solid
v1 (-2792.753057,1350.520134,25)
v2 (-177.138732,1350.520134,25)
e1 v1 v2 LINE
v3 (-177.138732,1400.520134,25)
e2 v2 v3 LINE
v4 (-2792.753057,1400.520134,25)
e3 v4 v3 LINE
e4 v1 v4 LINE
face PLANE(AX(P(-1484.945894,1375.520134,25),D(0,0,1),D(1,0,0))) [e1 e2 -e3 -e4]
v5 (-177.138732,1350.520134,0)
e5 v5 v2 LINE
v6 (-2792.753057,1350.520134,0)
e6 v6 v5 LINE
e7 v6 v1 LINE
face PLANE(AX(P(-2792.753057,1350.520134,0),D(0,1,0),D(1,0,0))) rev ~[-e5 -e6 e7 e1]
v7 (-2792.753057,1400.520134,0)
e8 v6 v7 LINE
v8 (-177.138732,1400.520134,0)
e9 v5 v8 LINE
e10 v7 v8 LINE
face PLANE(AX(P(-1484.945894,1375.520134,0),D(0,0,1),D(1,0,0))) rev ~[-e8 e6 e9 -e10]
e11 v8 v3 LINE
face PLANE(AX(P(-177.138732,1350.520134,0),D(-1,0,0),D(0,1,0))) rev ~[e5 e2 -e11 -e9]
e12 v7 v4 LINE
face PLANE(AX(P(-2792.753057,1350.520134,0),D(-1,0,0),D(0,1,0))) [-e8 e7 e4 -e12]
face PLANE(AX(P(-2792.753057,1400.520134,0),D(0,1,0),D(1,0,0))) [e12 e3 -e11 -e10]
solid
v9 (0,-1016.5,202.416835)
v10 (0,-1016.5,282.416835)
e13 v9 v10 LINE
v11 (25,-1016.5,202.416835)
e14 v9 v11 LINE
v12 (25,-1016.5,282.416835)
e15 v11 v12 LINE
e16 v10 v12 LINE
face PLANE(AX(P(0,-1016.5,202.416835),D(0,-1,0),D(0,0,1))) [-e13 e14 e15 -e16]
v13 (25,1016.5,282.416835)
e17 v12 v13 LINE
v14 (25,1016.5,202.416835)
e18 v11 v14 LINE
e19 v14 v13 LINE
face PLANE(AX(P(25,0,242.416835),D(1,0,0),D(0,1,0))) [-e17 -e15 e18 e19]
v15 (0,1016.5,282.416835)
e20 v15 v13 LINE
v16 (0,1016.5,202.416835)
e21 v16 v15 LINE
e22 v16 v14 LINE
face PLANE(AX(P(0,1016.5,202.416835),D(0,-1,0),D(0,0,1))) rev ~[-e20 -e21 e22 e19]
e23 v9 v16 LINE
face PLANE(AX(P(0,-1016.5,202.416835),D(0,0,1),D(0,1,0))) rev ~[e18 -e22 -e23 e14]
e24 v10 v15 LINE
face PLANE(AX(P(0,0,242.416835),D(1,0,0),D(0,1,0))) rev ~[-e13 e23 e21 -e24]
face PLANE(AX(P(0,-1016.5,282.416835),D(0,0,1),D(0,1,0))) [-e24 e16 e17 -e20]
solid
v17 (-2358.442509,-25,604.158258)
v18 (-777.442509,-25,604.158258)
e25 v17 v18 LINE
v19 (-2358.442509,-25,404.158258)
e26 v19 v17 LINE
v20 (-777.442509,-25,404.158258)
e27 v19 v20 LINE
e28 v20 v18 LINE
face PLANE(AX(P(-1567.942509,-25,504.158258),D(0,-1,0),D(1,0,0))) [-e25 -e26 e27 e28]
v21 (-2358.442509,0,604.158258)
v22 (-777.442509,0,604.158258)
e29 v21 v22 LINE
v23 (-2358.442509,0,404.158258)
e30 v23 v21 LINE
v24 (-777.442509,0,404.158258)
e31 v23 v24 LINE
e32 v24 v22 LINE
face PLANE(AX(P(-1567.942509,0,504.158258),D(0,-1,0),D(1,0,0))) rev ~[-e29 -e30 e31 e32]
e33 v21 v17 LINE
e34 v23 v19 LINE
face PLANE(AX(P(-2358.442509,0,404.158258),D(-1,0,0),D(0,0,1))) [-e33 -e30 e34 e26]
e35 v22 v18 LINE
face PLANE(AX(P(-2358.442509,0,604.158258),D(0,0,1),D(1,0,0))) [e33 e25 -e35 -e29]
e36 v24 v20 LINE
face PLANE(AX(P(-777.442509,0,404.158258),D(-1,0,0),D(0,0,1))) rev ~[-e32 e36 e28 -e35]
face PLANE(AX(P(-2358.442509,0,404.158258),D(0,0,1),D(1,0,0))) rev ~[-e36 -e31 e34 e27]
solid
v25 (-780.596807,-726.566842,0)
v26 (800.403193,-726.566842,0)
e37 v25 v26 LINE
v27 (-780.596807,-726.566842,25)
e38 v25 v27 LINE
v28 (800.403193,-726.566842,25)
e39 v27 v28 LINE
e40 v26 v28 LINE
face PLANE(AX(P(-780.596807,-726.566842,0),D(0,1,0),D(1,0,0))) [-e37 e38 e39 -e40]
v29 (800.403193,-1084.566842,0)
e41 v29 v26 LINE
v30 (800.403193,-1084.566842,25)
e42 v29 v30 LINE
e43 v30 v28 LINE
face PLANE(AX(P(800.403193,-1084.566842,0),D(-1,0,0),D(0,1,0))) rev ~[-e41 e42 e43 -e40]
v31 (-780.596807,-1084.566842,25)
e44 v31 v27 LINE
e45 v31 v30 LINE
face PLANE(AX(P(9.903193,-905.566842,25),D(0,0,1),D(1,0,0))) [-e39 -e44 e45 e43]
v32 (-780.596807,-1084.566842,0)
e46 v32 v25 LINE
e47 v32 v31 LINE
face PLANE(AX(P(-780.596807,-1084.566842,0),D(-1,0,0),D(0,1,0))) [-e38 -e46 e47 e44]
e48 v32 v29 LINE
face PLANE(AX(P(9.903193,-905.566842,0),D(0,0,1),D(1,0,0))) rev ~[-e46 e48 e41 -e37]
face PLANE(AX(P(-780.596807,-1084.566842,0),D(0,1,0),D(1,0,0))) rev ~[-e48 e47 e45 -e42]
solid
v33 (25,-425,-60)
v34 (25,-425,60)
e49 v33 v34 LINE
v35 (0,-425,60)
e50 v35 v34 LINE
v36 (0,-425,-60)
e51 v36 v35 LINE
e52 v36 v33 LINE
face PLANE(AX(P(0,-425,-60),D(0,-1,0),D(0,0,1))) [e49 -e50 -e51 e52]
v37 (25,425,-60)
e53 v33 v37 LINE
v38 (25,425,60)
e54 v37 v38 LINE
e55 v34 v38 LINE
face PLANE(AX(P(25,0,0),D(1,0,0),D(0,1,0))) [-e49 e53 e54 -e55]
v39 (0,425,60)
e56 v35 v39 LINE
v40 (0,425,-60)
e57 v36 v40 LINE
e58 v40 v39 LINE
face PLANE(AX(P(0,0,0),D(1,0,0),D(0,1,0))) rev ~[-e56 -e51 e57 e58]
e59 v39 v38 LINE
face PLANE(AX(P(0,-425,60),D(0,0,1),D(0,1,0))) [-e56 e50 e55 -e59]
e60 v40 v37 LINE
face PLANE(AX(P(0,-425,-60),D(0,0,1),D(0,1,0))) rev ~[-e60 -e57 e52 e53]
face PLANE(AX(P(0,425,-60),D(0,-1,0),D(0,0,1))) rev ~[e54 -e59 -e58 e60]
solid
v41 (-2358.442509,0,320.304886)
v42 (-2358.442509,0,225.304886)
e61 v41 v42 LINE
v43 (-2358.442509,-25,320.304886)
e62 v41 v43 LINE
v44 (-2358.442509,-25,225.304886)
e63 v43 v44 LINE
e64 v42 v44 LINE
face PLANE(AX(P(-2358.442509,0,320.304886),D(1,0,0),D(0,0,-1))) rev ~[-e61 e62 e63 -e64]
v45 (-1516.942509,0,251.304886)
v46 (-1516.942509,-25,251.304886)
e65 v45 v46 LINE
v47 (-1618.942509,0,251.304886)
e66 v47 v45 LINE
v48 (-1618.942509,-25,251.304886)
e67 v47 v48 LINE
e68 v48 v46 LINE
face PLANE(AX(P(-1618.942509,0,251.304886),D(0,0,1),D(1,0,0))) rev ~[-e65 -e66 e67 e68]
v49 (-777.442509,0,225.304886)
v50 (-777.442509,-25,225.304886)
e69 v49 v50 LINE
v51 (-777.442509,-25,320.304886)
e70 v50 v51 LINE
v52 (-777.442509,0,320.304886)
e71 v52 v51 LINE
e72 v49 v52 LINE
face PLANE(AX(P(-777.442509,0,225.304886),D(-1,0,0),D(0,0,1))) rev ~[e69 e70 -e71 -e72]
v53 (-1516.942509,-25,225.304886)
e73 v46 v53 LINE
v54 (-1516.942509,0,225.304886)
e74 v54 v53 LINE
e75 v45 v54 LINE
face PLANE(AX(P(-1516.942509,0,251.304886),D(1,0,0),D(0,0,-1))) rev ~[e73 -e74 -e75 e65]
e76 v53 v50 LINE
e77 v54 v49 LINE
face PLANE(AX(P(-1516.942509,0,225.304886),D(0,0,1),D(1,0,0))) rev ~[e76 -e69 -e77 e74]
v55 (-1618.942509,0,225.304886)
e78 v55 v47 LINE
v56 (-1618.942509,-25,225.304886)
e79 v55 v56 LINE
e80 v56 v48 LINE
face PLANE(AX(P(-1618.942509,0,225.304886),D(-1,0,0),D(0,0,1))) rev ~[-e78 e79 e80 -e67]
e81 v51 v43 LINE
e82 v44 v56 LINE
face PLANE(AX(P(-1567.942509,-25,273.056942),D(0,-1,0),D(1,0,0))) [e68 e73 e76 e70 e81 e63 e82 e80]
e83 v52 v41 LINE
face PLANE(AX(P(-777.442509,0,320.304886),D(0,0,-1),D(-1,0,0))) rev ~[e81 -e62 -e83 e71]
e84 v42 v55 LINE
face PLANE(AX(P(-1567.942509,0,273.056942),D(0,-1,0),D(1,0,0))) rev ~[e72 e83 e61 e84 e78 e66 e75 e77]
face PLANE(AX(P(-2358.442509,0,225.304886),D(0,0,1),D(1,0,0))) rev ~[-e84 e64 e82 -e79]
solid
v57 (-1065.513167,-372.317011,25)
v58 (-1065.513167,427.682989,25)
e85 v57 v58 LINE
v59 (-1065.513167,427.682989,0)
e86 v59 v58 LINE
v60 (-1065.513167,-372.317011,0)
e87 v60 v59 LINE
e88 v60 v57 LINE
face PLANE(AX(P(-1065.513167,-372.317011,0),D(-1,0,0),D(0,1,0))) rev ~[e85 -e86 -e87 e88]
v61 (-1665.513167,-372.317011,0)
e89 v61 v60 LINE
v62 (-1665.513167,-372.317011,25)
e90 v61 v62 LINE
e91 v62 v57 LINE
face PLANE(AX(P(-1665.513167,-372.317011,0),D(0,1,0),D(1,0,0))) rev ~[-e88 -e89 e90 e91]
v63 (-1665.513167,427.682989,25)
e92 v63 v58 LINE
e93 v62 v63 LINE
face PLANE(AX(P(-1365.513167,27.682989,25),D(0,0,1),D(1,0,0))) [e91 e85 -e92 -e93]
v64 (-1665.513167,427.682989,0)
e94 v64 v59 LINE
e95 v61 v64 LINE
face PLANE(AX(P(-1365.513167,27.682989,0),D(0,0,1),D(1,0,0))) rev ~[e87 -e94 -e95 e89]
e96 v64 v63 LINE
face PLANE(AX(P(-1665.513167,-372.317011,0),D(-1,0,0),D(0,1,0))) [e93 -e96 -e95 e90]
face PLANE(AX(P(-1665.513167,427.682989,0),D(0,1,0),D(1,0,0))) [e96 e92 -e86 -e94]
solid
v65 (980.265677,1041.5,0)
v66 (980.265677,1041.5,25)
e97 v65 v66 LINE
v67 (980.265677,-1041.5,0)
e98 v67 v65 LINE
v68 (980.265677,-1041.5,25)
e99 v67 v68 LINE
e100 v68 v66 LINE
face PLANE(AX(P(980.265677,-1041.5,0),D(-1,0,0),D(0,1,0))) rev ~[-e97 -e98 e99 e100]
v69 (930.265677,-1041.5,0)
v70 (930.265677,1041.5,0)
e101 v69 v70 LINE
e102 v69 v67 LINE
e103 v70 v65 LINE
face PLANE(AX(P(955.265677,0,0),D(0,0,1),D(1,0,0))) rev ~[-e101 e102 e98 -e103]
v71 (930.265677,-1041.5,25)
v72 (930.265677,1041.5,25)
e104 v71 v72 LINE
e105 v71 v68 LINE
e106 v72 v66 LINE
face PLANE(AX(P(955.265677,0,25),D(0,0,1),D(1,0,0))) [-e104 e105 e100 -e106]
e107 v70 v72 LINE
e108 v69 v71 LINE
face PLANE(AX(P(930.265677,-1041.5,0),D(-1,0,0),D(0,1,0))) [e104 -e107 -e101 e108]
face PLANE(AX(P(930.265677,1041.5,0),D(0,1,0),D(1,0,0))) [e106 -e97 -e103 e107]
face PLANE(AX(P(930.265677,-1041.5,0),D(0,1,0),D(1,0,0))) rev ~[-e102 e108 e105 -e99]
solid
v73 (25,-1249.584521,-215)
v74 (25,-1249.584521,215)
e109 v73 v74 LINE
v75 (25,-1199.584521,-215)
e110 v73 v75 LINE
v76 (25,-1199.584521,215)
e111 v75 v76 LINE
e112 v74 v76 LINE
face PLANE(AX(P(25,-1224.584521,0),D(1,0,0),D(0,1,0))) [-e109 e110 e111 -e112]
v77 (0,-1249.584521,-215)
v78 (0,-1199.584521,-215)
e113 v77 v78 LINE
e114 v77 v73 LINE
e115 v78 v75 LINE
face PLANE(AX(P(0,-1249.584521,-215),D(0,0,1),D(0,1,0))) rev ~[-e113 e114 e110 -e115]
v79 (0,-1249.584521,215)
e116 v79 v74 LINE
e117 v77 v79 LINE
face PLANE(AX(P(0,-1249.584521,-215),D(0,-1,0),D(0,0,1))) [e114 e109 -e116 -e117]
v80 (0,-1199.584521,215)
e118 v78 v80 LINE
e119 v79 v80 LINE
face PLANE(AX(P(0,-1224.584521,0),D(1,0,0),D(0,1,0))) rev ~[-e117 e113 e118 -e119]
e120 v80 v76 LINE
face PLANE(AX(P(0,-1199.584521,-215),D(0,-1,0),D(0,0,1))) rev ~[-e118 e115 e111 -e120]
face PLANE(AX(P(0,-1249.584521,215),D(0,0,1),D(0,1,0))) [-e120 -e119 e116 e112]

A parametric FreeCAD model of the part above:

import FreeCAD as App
import Part
import Sketcher
Q = App.Units.Quantity

doc = App.newDocument("Part")
body = doc.addObject("PartDesign::Body", "Body")
body.AllowCompound = True

# Sketch on YZ plane
sketch1 = body.newObject("Sketcher::SketchObject", "Sketch")
sketch1.AttachmentSupport = (doc.getObject("YZ_Plane"), [""])
sketch1.MapMode = "FlatFace"
sketch1.addGeometry(Part.LineSegment(App.Vector(-1250, 215, 0), App.Vector(-1250, -215, 0)), False)
sketch1.addGeometry(Part.LineSegment(App.Vector(-1250, -215, 0), App.Vector(-1200, -215, 0)), False)
sketch1.addGeometry(Part.LineSegment(App.Vector(-1200, -215, 0), App.Vector(-1200, 215, 0)), False)
sketch1.addGeometry(Part.LineSegment(App.Vector(-1200, 215, 0), App.Vector(-1250, 215, 0)), False)
sketch1.addGeometry(Part.LineSegment(App.Vector(-1016, 282, 0), App.Vector(-1016, 202, 0)), False)
sketch1.addGeometry(Part.LineSegment(App.Vector(-1016, 202, 0), App.Vector(1016, 202, 0)), False)
sketch1.addGeometry(Part.LineSegment(App.Vector(1016, 202, 0), App.Vector(1016, 282, 0)), False)
sketch1.addGeometry(Part.LineSegment(App.Vector(1016, 282, 0), App.Vector(-1016, 282, 0)), False)
sketch1.addGeometry(Part.LineSegment(App.Vector(-425, 60, 0), App.Vector(-425, -60, 0)), False)
sketch1.addGeometry(Part.LineSegment(App.Vector(-425, -60, 0), App.Vector(425, -60, 0)), False)
sketch1.addGeometry(Part.LineSegment(App.Vector(425, -60, 0), App.Vector(425, 60, 0)), False)
sketch1.addGeometry(Part.LineSegment(App.Vector(425, 60, 0), App.Vector(-425, 60, 0)), False)
sketch1.addConstraint(Sketcher.Constraint("Coincident", 0, 2, 1, 1))
sketch1.addConstraint(Sketcher.Constraint("Coincident", 1, 2, 2, 1))
sketch1.addConstraint(Sketcher.Constraint("Coincident", 2, 2, 3, 1))
sketch1.addConstraint(Sketcher.Constraint("Coincident", 3, 2, 0, 1))
sketch1.addConstraint(Sketcher.Constraint("Coincident", 4, 2, 5, 1))
sketch1.addConstraint(Sketcher.Constraint("Coincident", 5, 2, 6, 1))
sketch1.addConstraint(Sketcher.Constraint("Coincident", 6, 2, 7, 1))
sketch1.addConstraint(Sketcher.Constraint("Coincident", 7, 2, 4, 1))
sketch1.addConstraint(Sketcher.Constraint("Coincident", 8, 2, 9, 1))
sketch1.addConstraint(Sketcher.Constraint("Coincident", 9, 2, 10, 1))
sketch1.addConstraint(Sketcher.Constraint("Coincident", 10, 2, 11, 1))
sketch1.addConstraint(Sketcher.Constraint("Coincident", 11, 2, 8, 1))
sketch1.addConstraint(Sketcher.Constraint("Vertical", 0))
sketch1.addConstraint(Sketcher.Constraint("Horizontal", 1))
sketch1.addConstraint(Sketcher.Constraint("Vertical", 2))
sketch1.addConstraint(Sketcher.Constraint("Horizontal", 3))
sketch1.addConstraint(Sketcher.Constraint("Vertical", 4))
sketch1.addConstraint(Sketcher.Constraint("Horizontal", 5))
sketch1.addConstraint(Sketcher.Constraint("Vertical", 6))
sketch1.addConstraint(Sketcher.Constraint("Horizontal", 7))
sketch1.addConstraint(Sketcher.Constraint("Vertical", 8))
sketch1.addConstraint(Sketcher.Constraint("Horizontal", 9))
sketch1.addConstraint(Sketcher.Constraint("Vertical", 10))
sketch1.addConstraint(Sketcher.Constraint("Horizontal", 11))
sketch1.addConstraint(Sketcher.Constraint("Symmetric", 8, 2, 10, 2, -1, 1))
sketch1.addConstraint(Sketcher.Constraint("DistanceX", 1, 1, 1, 2, Q("50 mm")))
sketch1.addConstraint(Sketcher.Constraint("DistanceX", 5, 1, 5, 2, Q("2033 mm")))
sketch1.addConstraint(Sketcher.Constraint("DistanceX", 9, 1, 9, 2, Q("850 mm")))
sketch1.addConstraint(Sketcher.Constraint("DistanceY", 0, 2, 0, 1, Q("430 mm")))
sketch1.addConstraint(Sketcher.Constraint("DistanceY", 4, 2, 4, 1, Q("80 mm")))
sketch1.addConstraint(Sketcher.Constraint("DistanceY", 8, 2, 8, 1, Q("120 mm")))
sketch1.addConstraint(Sketcher.Constraint("DistanceY", 0, 2, -1, 1, Q("215 mm")))
sketch1.addConstraint(Sketcher.Constraint("DistanceX", 4, 2, -1, 1, Q("1016.5 mm")))
sketch1.addConstraint(Sketcher.Constraint("DistanceX", 0, 2, -1, 1, Q("1249.584521 mm")))
sketch1.addConstraint(Sketcher.Constraint("DistanceY", -1, 1, 4, 2, Q("202.416835 mm")))
pad1 = body.newObject("PartDesign::Pad", "Pad")
pad1.Profile = sketch1
pad1.Length = 25
body2 = doc.addObject("PartDesign::Body", "Body001")
body2.AllowCompound = True

# Sketch on XY plane
sketch2 = body2.newObject("Sketcher::SketchObject", "Sketch001")
sketch2.AttachmentSupport = (doc.getObject("XY_Plane001"), [""])
sketch2.MapMode = "FlatFace"
sketch2.addGeometry(Part.LineSegment(App.Vector(-781, -727, 0), App.Vector(-781, -1085, 0)), False)
sketch2.addGeometry(Part.LineSegment(App.Vector(-781, -1085, 0), App.Vector(800, -1085, 0)), False)
sketch2.addGeometry(Part.LineSegment(App.Vector(800, -1085, 0), App.Vector(800, -727, 0)), False)
sketch2.addGeometry(Part.LineSegment(App.Vector(800, -727, 0), App.Vector(-781, -727, 0)), False)
sketch2.addGeometry(Part.LineSegment(App.Vector(-1666, 428, 0), App.Vector(-1666, -372, 0)), False)
sketch2.addGeometry(Part.LineSegment(App.Vector(-1666, -372, 0), App.Vector(-1066, -372, 0)), False)
sketch2.addGeometry(Part.LineSegment(App.Vector(-1066, -372, 0), App.Vector(-1066, 428, 0)), False)
sketch2.addGeometry(Part.LineSegment(App.Vector(-1066, 428, 0), App.Vector(-1666, 428, 0)), False)
sketch2.addConstraint(Sketcher.Constraint("Coincident", 0, 2, 1, 1))
sketch2.addConstraint(Sketcher.Constraint("Coincident", 1, 2, 2, 1))
sketch2.addConstraint(Sketcher.Constraint("Coincident", 2, 2, 3, 1))
sketch2.addConstraint(Sketcher.Constraint("Coincident", 3, 2, 0, 1))
sketch2.addConstraint(Sketcher.Constraint("Coincident", 4, 2, 5, 1))
sketch2.addConstraint(Sketcher.Constraint("Coincident", 5, 2, 6, 1))
sketch2.addConstraint(Sketcher.Constraint("Coincident", 6, 2, 7, 1))
sketch2.addConstraint(Sketcher.Constraint("Coincident", 7, 2, 4, 1))
sketch2.addConstraint(Sketcher.Constraint("Vertical", 0))
sketch2.addConstraint(Sketcher.Constraint("Horizontal", 1))
sketch2.addConstraint(Sketcher.Constraint("Vertical", 2))
sketch2.addConstraint(Sketcher.Constraint("Horizontal", 3))
sketch2.addConstraint(Sketcher.Constraint("Vertical", 4))
sketch2.addConstraint(Sketcher.Constraint("Horizontal", 5))
sketch2.addConstraint(Sketcher.Constraint("Vertical", 6))
sketch2.addConstraint(Sketcher.Constraint("Horizontal", 7))
sketch2.addConstraint(Sketcher.Constraint("DistanceX", 1, 1, 1, 2, Q("1581 mm")))
sketch2.addConstraint(Sketcher.Constraint("DistanceX", 5, 1, 5, 2, Q("600 mm")))
sketch2.addConstraint(Sketcher.Constraint("DistanceY", 0, 2, 0, 1, Q("358 mm")))
sketch2.addConstraint(Sketcher.Constraint("DistanceY", 4, 2, 4, 1, Q("800 mm")))
sketch2.addConstraint(Sketcher.Constraint("DistanceY", 0, 2, -1, 1, Q("1084.566842 mm")))
sketch2.addConstraint(Sketcher.Constraint("DistanceY", 4, 2, -1, 1, Q("372.317011 mm")))
sketch2.addConstraint(Sketcher.Constraint("DistanceX", 4, 2, 3, 2, Q("884.91636 mm")))
sketch2.addConstraint(Sketcher.Constraint("DistanceX", 0, 2, -1, 1, Q("780.596807 mm")))
pad2 = body2.newObject("PartDesign::Pad", "Pad001")
pad2.Profile = sketch2
pad2.Length = 25
body3 = doc.addObject("PartDesign::Body", "Body002")
body3.AllowCompound = True

# Sketch on XZ plane
sketch3 = body3.newObject("Sketcher::SketchObject", "Sketch002")
sketch3.AttachmentSupport = (doc.getObject("XZ_Plane002"), [""])
sketch3.MapMode = "FlatFace"
sketch3.addGeometry(Part.LineSegment(App.Vector(-2358, 604, 0), App.Vector(-2358, 404, 0)), False)
sketch3.addGeometry(Part.LineSegment(App.Vector(-2358, 404, 0), App.Vector(-777, 404, 0)), False)
sketch3.addGeometry(Part.LineSegment(App.Vector(-777, 404, 0), App.Vector(-777, 604, 0)), False)
sketch3.addGeometry(Part.LineSegment(App.Vector(-777, 604, 0), App.Vector(-2358, 604, 0)), False)
sketch3.addGeometry(Part.LineSegment(App.Vector(-1517, 225, 0), App.Vector(-777, 225, 0)), False)
sketch3.addGeometry(Part.LineSegment(App.Vector(-777, 225, 0), App.Vector(-777, 320, 0)), False)
sketch3.addGeometry(Part.LineSegment(App.Vector(-777, 320, 0), App.Vector(-2358, 320, 0)), False)
sketch3.addGeometry(Part.LineSegment(App.Vector(-2358, 320, 0), App.Vector(-2358, 225, 0)), False)
sketch3.addGeometry(Part.LineSegment(App.Vector(-2358, 225, 0), App.Vector(-1619, 225, 0)), False)
sketch3.addGeometry(Part.LineSegment(App.Vector(-1619, 225, 0), App.Vector(-1619, 251, 0)), False)
sketch3.addGeometry(Part.LineSegment(App.Vector(-1619, 251, 0), App.Vector(-1517, 251, 0)), False)
sketch3.addGeometry(Part.LineSegment(App.Vector(-1517, 251, 0), App.Vector(-1517, 225, 0)), False)
sketch3.addConstraint(Sketcher.Constraint("Coincident", 0, 2, 1, 1))
sketch3.addConstraint(Sketcher.Constraint("Coincident", 1, 2, 2, 1))
sketch3.addConstraint(Sketcher.Constraint("Coincident", 2, 2, 3, 1))
sketch3.addConstraint(Sketcher.Constraint("Coincident", 3, 2, 0, 1))
sketch3.addConstraint(Sketcher.Constraint("Coincident", 4, 2, 5, 1))
sketch3.addConstraint(Sketcher.Constraint("Coincident", 5, 2, 6, 1))
sketch3.addConstraint(Sketcher.Constraint("Coincident", 6, 2, 7, 1))
sketch3.addConstraint(Sketcher.Constraint("Coincident", 7, 2, 8, 1))
sketch3.addConstraint(Sketcher.Constraint("Coincident", 8, 2, 9, 1))
sketch3.addConstraint(Sketcher.Constraint("Coincident", 9, 2, 10, 1))
sketch3.addConstraint(Sketcher.Constraint("Coincident", 10, 2, 11, 1))
sketch3.addConstraint(Sketcher.Constraint("Coincident", 11, 2, 4, 1))
sketch3.addConstraint(Sketcher.Constraint("Vertical", 0))
sketch3.addConstraint(Sketcher.Constraint("Horizontal", 1))
sketch3.addConstraint(Sketcher.Constraint("Vertical", 2))
sketch3.addConstraint(Sketcher.Constraint("Horizontal", 3))
sketch3.addConstraint(Sketcher.Constraint("Horizontal", 4))
sketch3.addConstraint(Sketcher.Constraint("Vertical", 5))
sketch3.addConstraint(Sketcher.Constraint("Horizontal", 6))
sketch3.addConstraint(Sketcher.Constraint("Vertical", 7))
sketch3.addConstraint(Sketcher.Constraint("Horizontal", 8))
sketch3.addConstraint(Sketcher.Constraint("Vertical", 9))
sketch3.addConstraint(Sketcher.Constraint("Horizontal", 10))
sketch3.addConstraint(Sketcher.Constraint("Vertical", 11))
sketch3.addConstraint(Sketcher.Constraint("Horizontal", 4, 2, 7, 2))
sketch3.addConstraint(Sketcher.Constraint("Vertical", 2, 2, 4, 2))
sketch3.addConstraint(Sketcher.Constraint("Vertical", 3, 2, 6, 2))
sketch3.addConstraint(Sketcher.Constraint("Equal", 4, 8))
sketch3.addConstraint(Sketcher.Constraint("DistanceX", 1, 1, 1, 2, Q("1581 mm")))
sketch3.addConstraint(Sketcher.Constraint("DistanceX", 10, 1, 10, 2, Q("102 mm")))
sketch3.addConstraint(Sketcher.Constraint("DistanceY", 0, 2, 0, 1, Q("200 mm")))
sketch3.addConstraint(Sketcher.Constraint("DistanceY", 5, 1, 5, 2, Q("95 mm")))
sketch3.addConstraint(Sketcher.Constraint("DistanceY", 9, 1, 9, 2, Q("26 mm")))
sketch3.addConstraint(Sketcher.Constraint("DistanceX", 0, 2, -1, 1, Q("2358.442509 mm")))
sketch3.addConstraint(Sketcher.Constraint("DistanceY", -1, 1, 0, 2, Q("404.158258 mm")))
sketch3.addConstraint(Sketcher.Constraint("DistanceY", 4, 2, 1, 2, Q("178.853372 mm")))
pad3 = body3.newObject("PartDesign::Pad", "Pad002")
pad3.Profile = sketch3
pad3.Length = 25
body4 = doc.addObject("PartDesign::Body", "Body003")
body4.AllowCompound = True

# Sketch on XY plane
sketch4 = body4.newObject("Sketcher::SketchObject", "Sketch003")
sketch4.AttachmentSupport = (doc.getObject("XY_Plane003"), [""])
sketch4.MapMode = "FlatFace"
sketch4.addGeometry(Part.LineSegment(App.Vector(930, 1042, 0), App.Vector(930, -1042, 0)), False)
sketch4.addGeometry(Part.LineSegment(App.Vector(930, -1042, 0), App.Vector(980, -1042, 0)), False)
sketch4.addGeometry(Part.LineSegment(App.Vector(980, -1042, 0), App.Vector(980, 1042, 0)), False)
sketch4.addGeometry(Part.LineSegment(App.Vector(980, 1042, 0), App.Vector(930, 1042, 0)), False)
sketch4.addGeometry(Part.LineSegment(App.Vector(-2793, 1401, 0), App.Vector(-2793, 1351, 0)), False)
sketch4.addGeometry(Part.LineSegment(App.Vector(-2793, 1351, 0), App.Vector(-177, 1351, 0)), False)
sketch4.addGeometry(Part.LineSegment(App.Vector(-177, 1351, 0), App.Vector(-177, 1401, 0)), False)
sketch4.addGeometry(Part.LineSegment(App.Vector(-177, 1401, 0), App.Vector(-2793, 1401, 0)), False)
sketch4.addConstraint(Sketcher.Constraint("Coincident", 0, 2, 1, 1))
sketch4.addConstraint(Sketcher.Constraint("Coincident", 1, 2, 2, 1))
sketch4.addConstraint(Sketcher.Constraint("Coincident", 2, 2, 3, 1))
sketch4.addConstraint(Sketcher.Constraint("Coincident", 3, 2, 0, 1))
sketch4.addConstraint(Sketcher.Constraint("Coincident", 4, 2, 5, 1))
sketch4.addConstraint(Sketcher.Constraint("Coincident", 5, 2, 6, 1))
sketch4.addConstraint(Sketcher.Constraint("Coincident", 6, 2, 7, 1))
sketch4.addConstraint(Sketcher.Constraint("Coincident", 7, 2, 4, 1))
sketch4.addConstraint(Sketcher.Constraint("Vertical", 0))
sketch4.addConstraint(Sketcher.Constraint("Horizontal", 1))
sketch4.addConstraint(Sketcher.Constraint("Vertical", 2))
sketch4.addConstraint(Sketcher.Constraint("Horizontal", 3))
sketch4.addConstraint(Sketcher.Constraint("Vertical", 4))
sketch4.addConstraint(Sketcher.Constraint("Horizontal", 5))
sketch4.addConstraint(Sketcher.Constraint("Vertical", 6))
sketch4.addConstraint(Sketcher.Constraint("Horizontal", 7))
sketch4.addConstraint(Sketcher.Constraint("Equal", 3, 4))
sketch4.addConstraint(Sketcher.Constraint("DistanceX", 1, 1, 1, 2, Q("50 mm")))
sketch4.addConstraint(Sketcher.Constraint("DistanceY", 0, 2, 0, 1, Q("2083 mm")))
sketch4.addConstraint(Sketcher.Constraint("DistanceY", 0, 2, -1, 1, Q("1041.5 mm")))
sketch4.addConstraint(Sketcher.Constraint("DistanceX", 5, 1, 5, 2, Q("2615.614325 mm")))
sketch4.addConstraint(Sketcher.Constraint("DistanceX", 5, 2, -1, 1, Q("177.138732 mm")))
sketch4.addConstraint(Sketcher.Constraint("DistanceX", 5, 2, 3, 2, Q("1107.404409 mm")))
sketch4.addConstraint(Sketcher.Constraint("DistanceY", -1, 1, 4, 2, Q("1350.520134 mm")))
pad4 = body4.newObject("PartDesign::Pad", "Pad003")
pad4.Profile = sketch4
pad4.Length = 25

doc.recompute()
